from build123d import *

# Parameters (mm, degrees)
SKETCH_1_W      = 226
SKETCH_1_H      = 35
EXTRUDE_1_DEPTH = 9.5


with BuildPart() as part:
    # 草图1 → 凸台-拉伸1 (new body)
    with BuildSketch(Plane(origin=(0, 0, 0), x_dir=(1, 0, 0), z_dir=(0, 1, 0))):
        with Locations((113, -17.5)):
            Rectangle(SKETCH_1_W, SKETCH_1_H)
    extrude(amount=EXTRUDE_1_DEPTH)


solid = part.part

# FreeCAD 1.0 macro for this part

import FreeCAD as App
import Part
import Sketcher

V = App.Vector

doc = App.newDocument("Part")
body = doc.addObject("PartDesign::Body", "Body")

# Sketch on XZ plane
sketch1 = doc.addObject("Sketcher::SketchObject", "Sketch")
body.addObject(sketch1)
sketch1.AttachmentSupport = (doc.XZ_Plane, [""])
sketch1.MapMode = "FlatFace"
sketch1.addGeometry([
    Part.LineSegment(V(0, 0, 0), V(0, 35, 0)),
    Part.LineSegment(V(0, 35, 0), V(226, 35, 0)),
    Part.LineSegment(V(226, 35, 0), V(226, 0, 0)),
    Part.LineSegment(V(226, 0, 0), V(0, 0, 0)),
], False)
sketch1.addConstraint([
    Sketcher.Constraint("Coincident", 0, 2, 1, 1),
    Sketcher.Constraint("Coincident", 1, 2, 2, 1),
    Sketcher.Constraint("Coincident", 2, 2, 3, 1),
    Sketcher.Constraint("Coincident", 3, 2, 0, 1),
    Sketcher.Constraint("Vertical", 0),
    Sketcher.Constraint("Horizontal", 1),
    Sketcher.Constraint("Vertical", 2),
    Sketcher.Constraint("Horizontal", 3),
    Sketcher.Constraint("Coincident", 3, 2, -1, 1),
    Sketcher.Constraint("DistanceX", 1, 1, 1, 2, 226.0),
    Sketcher.Constraint("DistanceY", 0, 1, 0, 2, 35.0),
])
pad1 = doc.addObject("PartDesign::Pad", "Pad")
body.addObject(pad1)
pad1.Profile = sketch1
pad1.Length = 9.5
pad1.Reversed = True

doc.recompute()
